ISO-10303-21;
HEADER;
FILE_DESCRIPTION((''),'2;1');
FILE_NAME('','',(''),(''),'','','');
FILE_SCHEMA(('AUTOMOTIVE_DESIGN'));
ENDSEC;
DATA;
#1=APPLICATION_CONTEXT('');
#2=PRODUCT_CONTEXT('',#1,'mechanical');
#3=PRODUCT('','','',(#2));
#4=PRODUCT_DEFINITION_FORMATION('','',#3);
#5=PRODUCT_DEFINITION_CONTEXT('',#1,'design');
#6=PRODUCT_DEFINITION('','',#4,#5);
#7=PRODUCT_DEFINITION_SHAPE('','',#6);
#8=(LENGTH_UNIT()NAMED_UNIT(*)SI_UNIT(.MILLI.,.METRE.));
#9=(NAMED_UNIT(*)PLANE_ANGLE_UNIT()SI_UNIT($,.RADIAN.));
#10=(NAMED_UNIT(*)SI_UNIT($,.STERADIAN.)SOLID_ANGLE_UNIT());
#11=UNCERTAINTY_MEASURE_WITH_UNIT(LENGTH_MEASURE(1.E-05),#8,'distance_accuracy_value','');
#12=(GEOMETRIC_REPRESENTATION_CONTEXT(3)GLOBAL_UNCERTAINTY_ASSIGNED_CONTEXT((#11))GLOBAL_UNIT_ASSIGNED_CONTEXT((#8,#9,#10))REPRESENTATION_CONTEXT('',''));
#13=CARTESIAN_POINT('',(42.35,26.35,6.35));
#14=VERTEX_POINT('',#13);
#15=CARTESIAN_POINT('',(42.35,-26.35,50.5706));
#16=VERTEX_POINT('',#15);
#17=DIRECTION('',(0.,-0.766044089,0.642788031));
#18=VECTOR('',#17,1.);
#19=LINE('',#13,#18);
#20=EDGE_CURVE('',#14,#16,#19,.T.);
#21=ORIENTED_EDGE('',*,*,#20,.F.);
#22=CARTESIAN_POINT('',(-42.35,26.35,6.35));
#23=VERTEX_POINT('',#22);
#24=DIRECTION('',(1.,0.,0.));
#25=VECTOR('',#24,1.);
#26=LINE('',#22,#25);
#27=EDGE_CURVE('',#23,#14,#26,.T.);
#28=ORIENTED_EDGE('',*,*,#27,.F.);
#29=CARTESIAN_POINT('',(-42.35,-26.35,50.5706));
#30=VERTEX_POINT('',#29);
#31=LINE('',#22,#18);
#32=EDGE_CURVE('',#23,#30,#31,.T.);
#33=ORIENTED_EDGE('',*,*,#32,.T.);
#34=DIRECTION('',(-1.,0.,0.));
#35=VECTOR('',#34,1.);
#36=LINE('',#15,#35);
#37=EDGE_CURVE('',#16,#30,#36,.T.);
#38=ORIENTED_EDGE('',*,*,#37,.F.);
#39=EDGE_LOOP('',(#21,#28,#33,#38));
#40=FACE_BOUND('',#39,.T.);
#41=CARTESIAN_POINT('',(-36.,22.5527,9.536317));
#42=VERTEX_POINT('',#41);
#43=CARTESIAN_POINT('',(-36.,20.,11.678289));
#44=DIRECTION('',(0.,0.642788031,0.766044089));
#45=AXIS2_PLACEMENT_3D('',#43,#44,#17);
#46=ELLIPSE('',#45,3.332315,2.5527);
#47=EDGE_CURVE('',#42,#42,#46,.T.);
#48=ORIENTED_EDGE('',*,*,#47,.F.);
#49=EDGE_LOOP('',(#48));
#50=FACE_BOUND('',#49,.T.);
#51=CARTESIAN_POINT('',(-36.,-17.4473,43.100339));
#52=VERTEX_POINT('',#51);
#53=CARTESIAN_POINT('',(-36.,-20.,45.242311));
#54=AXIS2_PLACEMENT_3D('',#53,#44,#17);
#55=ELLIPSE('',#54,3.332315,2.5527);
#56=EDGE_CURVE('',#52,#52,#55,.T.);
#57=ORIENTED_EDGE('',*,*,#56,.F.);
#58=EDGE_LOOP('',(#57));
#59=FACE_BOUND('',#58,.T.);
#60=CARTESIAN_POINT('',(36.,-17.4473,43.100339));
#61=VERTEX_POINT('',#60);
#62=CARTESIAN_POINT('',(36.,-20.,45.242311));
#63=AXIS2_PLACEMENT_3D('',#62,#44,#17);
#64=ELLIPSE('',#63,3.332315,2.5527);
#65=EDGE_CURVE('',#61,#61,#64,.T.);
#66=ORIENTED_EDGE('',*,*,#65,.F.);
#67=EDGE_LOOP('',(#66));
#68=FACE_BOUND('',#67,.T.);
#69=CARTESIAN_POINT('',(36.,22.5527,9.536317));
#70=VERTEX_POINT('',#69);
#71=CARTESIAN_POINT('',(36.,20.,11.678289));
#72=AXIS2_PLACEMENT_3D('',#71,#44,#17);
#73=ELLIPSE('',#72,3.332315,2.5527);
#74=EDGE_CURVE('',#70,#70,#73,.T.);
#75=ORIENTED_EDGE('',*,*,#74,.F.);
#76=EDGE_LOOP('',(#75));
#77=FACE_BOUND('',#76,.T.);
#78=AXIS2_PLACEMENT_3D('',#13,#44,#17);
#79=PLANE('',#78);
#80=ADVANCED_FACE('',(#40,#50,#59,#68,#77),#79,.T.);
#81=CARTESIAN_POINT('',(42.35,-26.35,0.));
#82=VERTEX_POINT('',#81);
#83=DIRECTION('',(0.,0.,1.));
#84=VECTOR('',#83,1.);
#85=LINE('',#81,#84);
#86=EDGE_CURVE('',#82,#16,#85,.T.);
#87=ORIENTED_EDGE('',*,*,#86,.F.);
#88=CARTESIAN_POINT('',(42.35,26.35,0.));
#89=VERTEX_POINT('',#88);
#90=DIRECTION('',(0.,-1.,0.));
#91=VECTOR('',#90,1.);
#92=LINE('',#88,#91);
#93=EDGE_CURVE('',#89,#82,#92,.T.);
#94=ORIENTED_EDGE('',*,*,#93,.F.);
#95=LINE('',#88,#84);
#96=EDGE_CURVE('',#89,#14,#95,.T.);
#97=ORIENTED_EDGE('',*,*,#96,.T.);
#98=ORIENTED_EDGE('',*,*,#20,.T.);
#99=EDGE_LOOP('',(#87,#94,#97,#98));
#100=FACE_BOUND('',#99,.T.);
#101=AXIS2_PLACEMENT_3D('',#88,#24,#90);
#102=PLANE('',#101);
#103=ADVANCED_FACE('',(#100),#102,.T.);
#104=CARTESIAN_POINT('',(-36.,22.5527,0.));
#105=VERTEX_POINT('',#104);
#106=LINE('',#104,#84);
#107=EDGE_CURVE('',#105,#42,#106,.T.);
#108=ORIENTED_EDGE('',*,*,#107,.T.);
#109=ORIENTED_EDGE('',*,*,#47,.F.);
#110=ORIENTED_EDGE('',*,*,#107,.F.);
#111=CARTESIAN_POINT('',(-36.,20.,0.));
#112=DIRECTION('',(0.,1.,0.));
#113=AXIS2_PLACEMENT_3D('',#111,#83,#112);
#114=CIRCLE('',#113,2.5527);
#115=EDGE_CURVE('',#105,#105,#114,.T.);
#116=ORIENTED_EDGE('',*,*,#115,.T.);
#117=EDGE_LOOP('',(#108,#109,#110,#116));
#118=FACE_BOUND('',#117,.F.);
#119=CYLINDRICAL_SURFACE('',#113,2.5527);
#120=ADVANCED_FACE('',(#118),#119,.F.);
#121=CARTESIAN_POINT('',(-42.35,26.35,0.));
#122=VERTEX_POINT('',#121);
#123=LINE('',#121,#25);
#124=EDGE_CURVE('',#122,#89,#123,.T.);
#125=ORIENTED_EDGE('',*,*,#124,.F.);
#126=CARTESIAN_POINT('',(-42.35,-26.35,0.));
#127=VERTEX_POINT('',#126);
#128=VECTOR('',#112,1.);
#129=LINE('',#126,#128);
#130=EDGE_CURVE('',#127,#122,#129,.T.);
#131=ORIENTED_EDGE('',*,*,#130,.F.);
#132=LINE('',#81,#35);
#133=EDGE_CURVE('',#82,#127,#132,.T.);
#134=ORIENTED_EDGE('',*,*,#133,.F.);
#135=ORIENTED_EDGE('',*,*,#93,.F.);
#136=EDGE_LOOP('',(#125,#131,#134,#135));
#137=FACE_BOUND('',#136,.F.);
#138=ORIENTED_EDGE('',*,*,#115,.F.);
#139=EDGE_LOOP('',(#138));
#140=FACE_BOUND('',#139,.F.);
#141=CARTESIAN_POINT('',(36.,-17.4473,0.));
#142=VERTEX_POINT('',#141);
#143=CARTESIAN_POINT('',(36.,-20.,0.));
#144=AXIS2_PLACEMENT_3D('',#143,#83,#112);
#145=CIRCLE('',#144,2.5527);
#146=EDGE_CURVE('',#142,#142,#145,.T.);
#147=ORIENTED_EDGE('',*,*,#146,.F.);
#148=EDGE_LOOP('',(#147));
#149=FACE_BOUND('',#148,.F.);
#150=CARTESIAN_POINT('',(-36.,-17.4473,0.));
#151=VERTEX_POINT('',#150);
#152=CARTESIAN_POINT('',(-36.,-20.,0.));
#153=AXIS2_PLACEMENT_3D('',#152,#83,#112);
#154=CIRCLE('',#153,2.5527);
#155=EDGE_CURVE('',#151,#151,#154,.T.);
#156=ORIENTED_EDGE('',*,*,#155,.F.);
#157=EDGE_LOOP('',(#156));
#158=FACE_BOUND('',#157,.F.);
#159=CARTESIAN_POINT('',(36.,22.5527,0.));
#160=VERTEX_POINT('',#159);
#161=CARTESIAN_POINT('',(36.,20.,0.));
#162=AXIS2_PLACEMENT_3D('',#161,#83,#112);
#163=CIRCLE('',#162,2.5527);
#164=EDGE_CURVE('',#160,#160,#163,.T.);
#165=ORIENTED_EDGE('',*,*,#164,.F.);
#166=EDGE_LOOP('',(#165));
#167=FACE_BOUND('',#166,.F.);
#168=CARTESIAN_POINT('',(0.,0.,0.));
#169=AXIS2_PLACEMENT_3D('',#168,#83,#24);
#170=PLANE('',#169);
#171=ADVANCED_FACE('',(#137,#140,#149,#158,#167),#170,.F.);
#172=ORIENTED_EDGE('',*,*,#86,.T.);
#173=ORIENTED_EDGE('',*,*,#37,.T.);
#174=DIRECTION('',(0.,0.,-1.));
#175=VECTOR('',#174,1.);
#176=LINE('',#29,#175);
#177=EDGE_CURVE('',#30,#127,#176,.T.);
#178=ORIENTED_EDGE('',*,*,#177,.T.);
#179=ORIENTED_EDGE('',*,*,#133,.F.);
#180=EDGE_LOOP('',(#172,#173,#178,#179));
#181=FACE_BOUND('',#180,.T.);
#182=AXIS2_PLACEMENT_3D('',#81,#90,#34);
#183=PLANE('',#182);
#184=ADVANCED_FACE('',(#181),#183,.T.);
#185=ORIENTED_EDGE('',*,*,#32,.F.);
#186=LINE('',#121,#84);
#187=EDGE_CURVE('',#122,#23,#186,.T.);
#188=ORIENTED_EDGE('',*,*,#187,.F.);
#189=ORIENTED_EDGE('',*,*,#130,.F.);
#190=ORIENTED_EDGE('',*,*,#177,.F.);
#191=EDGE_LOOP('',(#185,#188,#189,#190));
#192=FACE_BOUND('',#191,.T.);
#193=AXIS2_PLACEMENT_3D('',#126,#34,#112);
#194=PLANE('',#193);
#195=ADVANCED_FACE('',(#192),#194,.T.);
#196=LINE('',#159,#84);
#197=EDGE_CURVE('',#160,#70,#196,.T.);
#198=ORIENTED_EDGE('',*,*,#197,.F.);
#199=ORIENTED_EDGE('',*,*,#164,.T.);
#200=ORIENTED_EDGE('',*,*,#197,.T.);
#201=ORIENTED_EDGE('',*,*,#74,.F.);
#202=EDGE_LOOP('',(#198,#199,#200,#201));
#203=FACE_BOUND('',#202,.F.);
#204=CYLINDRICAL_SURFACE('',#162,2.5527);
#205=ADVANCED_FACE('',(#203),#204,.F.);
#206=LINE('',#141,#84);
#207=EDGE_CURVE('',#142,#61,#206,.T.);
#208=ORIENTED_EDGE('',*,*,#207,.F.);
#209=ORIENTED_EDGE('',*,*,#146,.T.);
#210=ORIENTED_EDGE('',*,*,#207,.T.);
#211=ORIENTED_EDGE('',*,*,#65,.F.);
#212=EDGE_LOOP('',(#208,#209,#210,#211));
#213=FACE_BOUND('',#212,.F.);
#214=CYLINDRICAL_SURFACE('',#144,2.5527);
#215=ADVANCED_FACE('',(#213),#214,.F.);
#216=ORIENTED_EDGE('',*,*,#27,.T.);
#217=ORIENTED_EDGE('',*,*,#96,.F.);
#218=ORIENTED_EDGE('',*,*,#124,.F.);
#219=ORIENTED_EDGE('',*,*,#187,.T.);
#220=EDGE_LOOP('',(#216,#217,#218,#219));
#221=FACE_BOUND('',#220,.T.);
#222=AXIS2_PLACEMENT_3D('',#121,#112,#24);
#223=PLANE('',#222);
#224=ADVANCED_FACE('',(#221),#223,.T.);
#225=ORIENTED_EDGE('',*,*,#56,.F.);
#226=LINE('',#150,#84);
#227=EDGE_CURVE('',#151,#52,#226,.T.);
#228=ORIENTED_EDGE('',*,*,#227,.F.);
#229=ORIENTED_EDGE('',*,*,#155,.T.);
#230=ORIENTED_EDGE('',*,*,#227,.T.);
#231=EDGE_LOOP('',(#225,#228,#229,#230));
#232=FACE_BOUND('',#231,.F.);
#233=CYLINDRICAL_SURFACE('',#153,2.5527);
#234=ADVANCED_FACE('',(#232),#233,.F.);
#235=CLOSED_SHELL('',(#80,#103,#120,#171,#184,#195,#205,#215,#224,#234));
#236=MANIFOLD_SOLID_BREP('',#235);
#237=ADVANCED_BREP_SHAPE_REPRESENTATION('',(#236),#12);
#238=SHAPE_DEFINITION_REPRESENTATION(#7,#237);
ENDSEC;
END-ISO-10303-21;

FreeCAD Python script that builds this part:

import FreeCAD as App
import Part
import Sketcher
from FreeCAD import Vector
Q = App.Units.Quantity


def add_polygon(sketch, points):
    """Adds a closed chain of lines whose ends are joined by coincident constraints."""
    first, n = sketch.GeometryCount, len(points)
    for a, b in zip(points, points[1:] + points[:1]):
        sketch.addGeometry(Part.LineSegment(App.Vector(*a, 0), App.Vector(*b, 0)), False)
    for i in range(n):
        sketch.addConstraint(Sketcher.Constraint("Coincident", first + i, 2, first + (i + 1) % n, 1))

doc = App.newDocument("Part")
body = doc.addObject("PartDesign::Body", "Body")

# Sketch on XY plane
sketch1 = body.newObject("Sketcher::SketchObject", "Sketch")
sketch1.AttachmentSupport = (doc.getObject("XY_Plane"), [""])
sketch1.MapMode = "FlatFace"
add_polygon(sketch1, [(-42.35, -26.35), (42.35, -26.35), (42.35, 26.35), (-42.35, 26.35)])  # lines 0-3
sketch1.addConstraint(Sketcher.Constraint("Horizontal", 0))
sketch1.addConstraint(Sketcher.Constraint("Vertical", 1))
sketch1.addConstraint(Sketcher.Constraint("Horizontal", 2))
sketch1.addConstraint(Sketcher.Constraint("Vertical", 3))
sketch1.addConstraint(Sketcher.Constraint("Symmetric", 0, 2, 2, 2, -1, 1))
sketch1.addConstraint(Sketcher.Constraint("DistanceY", 1, 1, 1, 2, Q("2.0748 in")))
sketch1.addConstraint(Sketcher.Constraint("DistanceX", 0, 1, 0, 2, Q("84.7 mm")))
pad1 = body.newObject("PartDesign::Pad", "Pad")
pad1.Profile = sketch1
pad1.Length = Q("0.25 in")

# Sketch on YZ plane
sketch2 = body.newObject("Sketcher::SketchObject", "Sketch001")
sketch2.AttachmentSupport = (doc.getObject("YZ_Plane"), [""])
sketch2.MapMode = "FlatFace"
sketch2.AttachmentOffset = App.Placement(Vector(0, 0, 42.35), App.Rotation())
add_polygon(sketch2, [(-26.35, 50.5706), (-26.35, 6.35), (26.35, 6.35)])  # lines 0-2
sketch2.addConstraint(Sketcher.Constraint("Vertical", 0))
sketch2.addConstraint(Sketcher.Constraint("Horizontal", 1))
sketch2.addConstraint(Sketcher.Constraint("Angle", 2, Q("140 deg")))
sketch2.addConstraint(Sketcher.Constraint("DistanceY", -1, 1, 0, 2, Q("0.25 in")))
sketch2.addConstraint(Sketcher.Constraint("DistanceX", 1, 1, 1, 2, Q("2.0748 in")))
sketch2.addConstraint(Sketcher.Constraint("DistanceX", 0, 2, -1, 1, Q("1.0374 in")))
pad2 = body.newObject("PartDesign::Pad", "Pad001")
pad2.Profile = sketch2
pad2.Length = 84.7
pad2.Reversed = True

# Sketch on XY plane
sketch3 = body.newObject("Sketcher::SketchObject", "Sketch002")
sketch3.AttachmentSupport = (doc.getObject("XY_Plane"), [""])
sketch3.MapMode = "FlatFace"
sketch3.addGeometry(Part.Circle(Vector(-36, 20, 0), Vector(0, 0, 1), 2.5527), False)
sketch3.addGeometry(Part.Circle(Vector(-36, -20, 0), Vector(0, 0, 1), 2.5527), False)
sketch3.addGeometry(Part.Circle(Vector(36, -20, 0), Vector(0, 0, 1), 2.5527), False)
sketch3.addGeometry(Part.Circle(Vector(36, 20, 0), Vector(0, 0, 1), 2.5527), False)
sketch3.addConstraint(Sketcher.Constraint("Equal", 0, 1))
sketch3.addConstraint(Sketcher.Constraint("Equal", 1, 2))
sketch3.addConstraint(Sketcher.Constraint("Equal", 2, 3))
sketch3.addConstraint(Sketcher.Constraint("Symmetric", 0, 3, 2, 3, -1, 1))
sketch3.addConstraint(Sketcher.Constraint("Symmetric", 1, 3, 3, 3, -1, 1))
sketch3.addConstraint(Sketcher.Constraint("Symmetric", 1, 3, 2, 3, -2))
sketch3.addConstraint(Sketcher.Constraint("Diameter", 0, Q("0.201 in")))
sketch3.addConstraint(Sketcher.Constraint("DistanceY", -1, 1, 0, 3, Q("0.7874 in")))
sketch3.addConstraint(Sketcher.Constraint("DistanceX", 0, 3, -1, 1, Q("36 mm")))
doc.recompute()
hole = body.newObject("PartDesign::Hole", "Hole")
hole.Profile = sketch3
hole.ThreadType = "None"
hole.Diameter = Q("0.201 in")
hole.DepthType = "ThroughAll"
hole.Reversed = True

doc.recompute()
